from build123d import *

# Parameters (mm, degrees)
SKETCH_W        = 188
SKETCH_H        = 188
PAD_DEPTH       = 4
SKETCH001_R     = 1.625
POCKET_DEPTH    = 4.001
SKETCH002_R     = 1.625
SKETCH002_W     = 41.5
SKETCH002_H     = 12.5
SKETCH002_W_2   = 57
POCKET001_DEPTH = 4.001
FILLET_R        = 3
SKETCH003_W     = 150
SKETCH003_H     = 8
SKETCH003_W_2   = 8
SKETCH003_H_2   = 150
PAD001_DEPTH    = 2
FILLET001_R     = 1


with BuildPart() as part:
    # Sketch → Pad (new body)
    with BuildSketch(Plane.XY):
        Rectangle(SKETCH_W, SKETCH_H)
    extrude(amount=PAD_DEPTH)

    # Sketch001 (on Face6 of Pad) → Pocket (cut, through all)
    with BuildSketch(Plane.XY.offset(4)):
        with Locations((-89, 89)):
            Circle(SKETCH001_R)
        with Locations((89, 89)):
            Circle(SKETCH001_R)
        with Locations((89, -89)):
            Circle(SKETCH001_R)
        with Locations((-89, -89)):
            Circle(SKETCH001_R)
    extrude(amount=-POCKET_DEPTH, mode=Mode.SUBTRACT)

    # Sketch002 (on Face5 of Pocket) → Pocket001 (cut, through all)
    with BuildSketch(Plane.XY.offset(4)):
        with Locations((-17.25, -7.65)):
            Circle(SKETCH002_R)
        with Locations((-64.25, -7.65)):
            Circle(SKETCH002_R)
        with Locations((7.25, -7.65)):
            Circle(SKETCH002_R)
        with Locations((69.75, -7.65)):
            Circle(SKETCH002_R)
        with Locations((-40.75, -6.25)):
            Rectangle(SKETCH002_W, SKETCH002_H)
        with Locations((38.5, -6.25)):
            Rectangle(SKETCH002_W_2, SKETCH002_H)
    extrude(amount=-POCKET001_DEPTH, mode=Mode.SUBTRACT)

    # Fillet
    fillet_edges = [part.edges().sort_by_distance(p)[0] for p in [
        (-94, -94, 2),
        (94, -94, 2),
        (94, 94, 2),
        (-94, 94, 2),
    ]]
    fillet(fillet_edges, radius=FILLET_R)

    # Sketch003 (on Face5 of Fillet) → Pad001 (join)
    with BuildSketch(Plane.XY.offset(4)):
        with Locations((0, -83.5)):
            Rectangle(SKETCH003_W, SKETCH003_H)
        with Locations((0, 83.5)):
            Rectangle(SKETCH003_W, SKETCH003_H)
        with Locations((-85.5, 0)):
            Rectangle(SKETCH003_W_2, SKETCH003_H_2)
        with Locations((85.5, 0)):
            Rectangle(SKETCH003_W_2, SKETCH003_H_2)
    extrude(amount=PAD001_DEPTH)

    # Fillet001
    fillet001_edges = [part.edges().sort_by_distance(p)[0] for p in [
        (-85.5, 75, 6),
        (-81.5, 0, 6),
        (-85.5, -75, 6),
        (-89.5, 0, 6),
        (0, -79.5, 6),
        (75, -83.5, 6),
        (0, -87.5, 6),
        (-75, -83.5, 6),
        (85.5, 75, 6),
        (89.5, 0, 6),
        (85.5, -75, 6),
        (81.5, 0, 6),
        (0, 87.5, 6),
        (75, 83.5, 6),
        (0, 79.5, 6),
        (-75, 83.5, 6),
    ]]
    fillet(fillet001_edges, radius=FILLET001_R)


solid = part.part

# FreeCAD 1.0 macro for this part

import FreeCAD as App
import Part
import Sketcher

V = App.Vector
Q = App.Units.Quantity


def edges_at(feature, points):
    """Names of the edges that pass closest to the given points."""
    edges = feature.Shape.Edges
    near = lambda p: min(range(len(edges)), key=lambda i: edges[i].distToShape(Part.Vertex(*p))[0])
    return sorted({f"Edge{near(p) + 1}" for p in points})

doc = App.newDocument("Part")
params = doc.addObject("Spreadsheet::Sheet", "Params")
for row, (alias, value) in enumerate([
    ("sketch1_width", "188 mm"),
    ("pad1_length", "4 mm"),
    ("sketch2_diameter", "3.25 mm"),
    ("sketch3_diameter", "3.25 mm"),
    ("sketch3_width", "57 mm"),
    ("sketch3_width2", "41.5 mm"),
    ("sketch3_height", "12.5 mm"),
    ("fillet_radius", "3 mm"),
    ("sketch4_width", "150 mm"),
    ("sketch4_width2", "8 mm"),
    ("pad2_length", "2 mm"),
    ("fillet2_radius", "1 mm"),
], start=1):
    params.set(f"A{row}", alias)
    params.set(f"B{row}", "=" + value)
    params.setAlias(f"B{row}", alias)

body = doc.addObject("PartDesign::Body", "Body")

# Sketch on XY plane
sketch1 = doc.addObject("Sketcher::SketchObject", "Sketch")
body.addObject(sketch1)
sketch1.AttachmentSupport = (doc.XY_Plane, [""])
sketch1.MapMode = "FlatFace"
sketch1.addGeometry([
    Part.LineSegment(V(-94, 94, 0), V(-94, -94, 0)),
    Part.LineSegment(V(-94, -94, 0), V(94, -94, 0)),
    Part.LineSegment(V(94, -94, 0), V(94, 94, 0)),
    Part.LineSegment(V(94, 94, 0), V(-94, 94, 0)),
], False)
sketch1.addConstraint([
    Sketcher.Constraint("Coincident", 0, 2, 1, 1),
    Sketcher.Constraint("Coincident", 1, 2, 2, 1),
    Sketcher.Constraint("Coincident", 2, 2, 3, 1),
    Sketcher.Constraint("Coincident", 3, 2, 0, 1),
    Sketcher.Constraint("Vertical", 0),
    Sketcher.Constraint("Horizontal", 1),
    Sketcher.Constraint("Vertical", 2),
    Sketcher.Constraint("Horizontal", 3),
    Sketcher.Constraint("Symmetric", 0, 2, 2, 2, -1, 1),
    Sketcher.Constraint("Equal", 3, 0),
    Sketcher.Constraint("DistanceX", 1, 1, 1, 2, Q("188 mm")),
])
sketch1.setExpression("Constraints[10]", "Params.sketch1_width")
pad1 = doc.addObject("PartDesign::Pad", "Pad")
body.addObject(pad1)
pad1.Profile = sketch1
pad1.setExpression("Length", "Params.pad1_length")

# Sketch on XY plane
sketch2 = doc.addObject("Sketcher::SketchObject", "Sketch001")
body.addObject(sketch2)
sketch2.AttachmentSupport = (doc.XY_Plane, [""])
sketch2.MapMode = "FlatFace"
sketch2.AttachmentOffset = App.Placement(V(0, 0, 4), App.Rotation())
sketch2.addGeometry([
    Part.Circle(V(-89, 89, 0), V(0, 0, 1), 1.6),
    Part.Circle(V(89, 89, 0), V(0, 0, 1), 1.6),
    Part.Circle(V(89, -89, 0), V(0, 0, 1), 1.6),
    Part.Circle(V(-89, -89, 0), V(0, 0, 1), 1.6),
], False)
sketch2.addConstraint([
    Sketcher.Constraint("Equal", 0, 1),
    Sketcher.Constraint("Equal", 1, 2),
    Sketcher.Constraint("Equal", 2, 3),
    Sketcher.Constraint("Symmetric", 0, 3, 2, 3, -1, 1),
    Sketcher.Constraint("Symmetric", 1, 3, 3, 3, -1, 1),
    Sketcher.Constraint("Symmetric", 0, 3, 1, 3, -2),
    Sketcher.Constraint("Diameter", 0, Q("3.25 mm")),
    Sketcher.Constraint("DistanceX", 0, 3, -1, 1, Q("89 mm")),
    Sketcher.Constraint("DistanceY", -1, 1, 0, 3, Q("89 mm")),
])
sketch2.setExpression("Constraints[6]", "Params.sketch2_diameter")
pocket1 = doc.addObject("PartDesign::Pocket", "Pocket")
body.addObject(pocket1)
pocket1.Profile = sketch2
pocket1.Type = "ThroughAll"

# Sketch on XY plane
sketch3 = doc.addObject("Sketcher::SketchObject", "Sketch002")
body.addObject(sketch3)
sketch3.AttachmentSupport = (doc.XY_Plane, [""])
sketch3.MapMode = "FlatFace"
sketch3.AttachmentOffset = App.Placement(V(0, 0, 4), App.Rotation())
sketch3.addGeometry([
    Part.Circle(V(-17.2, -7.7, 0), V(0, 0, 1), 1.6),  # 0
    Part.Circle(V(-64.2, -7.7, 0), V(0, 0, 1), 1.6),  # 1
    Part.Circle(V(7.2, -7.7, 0), V(0, 0, 1), 1.6),  # 2
    Part.Circle(V(69.8, -7.7, 0), V(0, 0, 1), 1.6),  # 3
    Part.LineSegment(V(-61.5, 0, 0), V(-61.5, -12.5, 0)),  # 4
    Part.LineSegment(V(-61.5, -12.5, 0), V(-20, -12.5, 0)),  # 5
    Part.LineSegment(V(-20, -12.5, 0), V(-20, 0, 0)),  # 6
    Part.LineSegment(V(-20, 0, 0), V(-61.5, 0, 0)),  # 7
    Part.LineSegment(V(10, 0, 0), V(10, -12.5, 0)),  # 8
    Part.LineSegment(V(10, -12.5, 0), V(67, -12.5, 0)),  # 9
    Part.LineSegment(V(67, -12.5, 0), V(67, 0, 0)),  # 10
    Part.LineSegment(V(67, 0, 0), V(10, 0, 0)),  # 11
], False)
sketch3.addConstraint([
    Sketcher.Constraint("Coincident", 4, 2, 5, 1),
    Sketcher.Constraint("Coincident", 5, 2, 6, 1),
    Sketcher.Constraint("Coincident", 6, 2, 7, 1),
    Sketcher.Constraint("Coincident", 7, 2, 4, 1),
    Sketcher.Constraint("Coincident", 8, 2, 9, 1),
    Sketcher.Constraint("Coincident", 9, 2, 10, 1),
    Sketcher.Constraint("Coincident", 10, 2, 11, 1),
    Sketcher.Constraint("Coincident", 11, 2, 8, 1),
    Sketcher.Constraint("Vertical", 4),
    Sketcher.Constraint("Horizontal", 5),
    Sketcher.Constraint("Vertical", 6),
    Sketcher.Constraint("Horizontal", 7),
    Sketcher.Constraint("Vertical", 8),
    Sketcher.Constraint("Horizontal", 9),
    Sketcher.Constraint("Vertical", 10),
    Sketcher.Constraint("Horizontal", 11),
    Sketcher.Constraint("Equal", 0, 1),
    Sketcher.Constraint("Equal", 1, 2),
    Sketcher.Constraint("Equal", 2, 3),
    Sketcher.Constraint("PointOnObject", 6, 2, -1),
    Sketcher.Constraint("PointOnObject", 10, 2, -1),
    Sketcher.Constraint("Horizontal", 0, 3, 1, 3),
    Sketcher.Constraint("Horizontal", 1, 3, 2, 3),
    Sketcher.Constraint("Horizontal", 2, 3, 3, 3),
    Sketcher.Constraint("Horizontal", 5, 2, 8, 2),
    Sketcher.Constraint("Diameter", 0, Q("3.25 mm")),
    Sketcher.Constraint("DistanceX", 9, 1, 9, 2, Q("57 mm")),
    Sketcher.Constraint("DistanceX", 5, 1, 5, 2, Q("41.5 mm")),
    Sketcher.Constraint("DistanceY", 4, 2, 4, 1, Q("12.5 mm")),
    Sketcher.Constraint("DistanceX", 5, 2, -1, 1, Q("20 mm")),
    Sketcher.Constraint("DistanceX", -1, 1, 8, 2, Q("10 mm")),
    Sketcher.Constraint("DistanceX", 1, 3, 0, 3, Q("47 mm")),
    Sketcher.Constraint("DistanceX", 0, 3, 3, 3, Q("87 mm")),
    Sketcher.Constraint("DistanceX", 0, 3, 2, 3, Q("24.5 mm")),
    Sketcher.Constraint("DistanceX", 0, 3, -1, 1, Q("17.25 mm")),
    Sketcher.Constraint("DistanceY", 0, 3, -1, 1, Q("7.65 mm")),
])
sketch3.setExpression("Constraints[25]", "Params.sketch3_diameter")
sketch3.setExpression("Constraints[26]", "Params.sketch3_width")
sketch3.setExpression("Constraints[27]", "Params.sketch3_width2")
sketch3.setExpression("Constraints[28]", "Params.sketch3_height")
pocket2 = doc.addObject("PartDesign::Pocket", "Pocket001")
body.addObject(pocket2)
pocket2.Profile = sketch3
pocket2.Type = "ThroughAll"
doc.recompute()

fillet = doc.addObject("PartDesign::Fillet", "Fillet")
body.addObject(fillet)
fillet.Base = (pocket2, edges_at(pocket2, [
    (-94, -94, 2),
    (94, -94, 2),
    (94, 94, 2),
    (-94, 94, 2),
]))
fillet.setExpression("Radius", "Params.fillet_radius")

# Sketch on XY plane
sketch4 = doc.addObject("Sketcher::SketchObject", "Sketch003")
body.addObject(sketch4)
sketch4.AttachmentSupport = (doc.XY_Plane, [""])
sketch4.MapMode = "FlatFace"
sketch4.AttachmentOffset = App.Placement(V(0, 0, 4), App.Rotation())
sketch4.addGeometry([
    Part.LineSegment(V(-75, -80, 0), V(-75, -88, 0)),  # 0
    Part.LineSegment(V(-75, -88, 0), V(75, -88, 0)),  # 1
    Part.LineSegment(V(75, -88, 0), V(75, -80, 0)),  # 2
    Part.LineSegment(V(75, -80, 0), V(-75, -80, 0)),  # 3
    Part.LineSegment(V(-75, 88, 0), V(-75, 80, 0)),  # 4
    Part.LineSegment(V(-75, 80, 0), V(75, 80, 0)),  # 5
    Part.LineSegment(V(75, 80, 0), V(75, 88, 0)),  # 6
    Part.LineSegment(V(75, 88, 0), V(-75, 88, 0)),  # 7
    Part.LineSegment(V(-90, 75, 0), V(-90, -75, 0)),  # 8
    Part.LineSegment(V(-90, -75, 0), V(-82, -75, 0)),  # 9
    Part.LineSegment(V(-82, -75, 0), V(-82, 75, 0)),  # 10
    Part.LineSegment(V(-82, 75, 0), V(-90, 75, 0)),  # 11
    Part.LineSegment(V(82, 75, 0), V(82, -75, 0)),  # 12
    Part.LineSegment(V(82, -75, 0), V(90, -75, 0)),  # 13
    Part.LineSegment(V(90, -75, 0), V(90, 75, 0)),  # 14
    Part.LineSegment(V(90, 75, 0), V(82, 75, 0)),  # 15
], False)
sketch4.addConstraint([
    Sketcher.Constraint("Coincident", 0, 2, 1, 1),
    Sketcher.Constraint("Coincident", 1, 2, 2, 1),
    Sketcher.Constraint("Coincident", 2, 2, 3, 1),
    Sketcher.Constraint("Coincident", 3, 2, 0, 1),
    Sketcher.Constraint("Coincident", 4, 2, 5, 1),
    Sketcher.Constraint("Coincident", 5, 2, 6, 1),
    Sketcher.Constraint("Coincident", 6, 2, 7, 1),
    Sketcher.Constraint("Coincident", 7, 2, 4, 1),
    Sketcher.Constraint("Coincident", 8, 2, 9, 1),
    Sketcher.Constraint("Coincident", 9, 2, 10, 1),
    Sketcher.Constraint("Coincident", 10, 2, 11, 1),
    Sketcher.Constraint("Coincident", 11, 2, 8, 1),
    Sketcher.Constraint("Coincident", 12, 2, 13, 1),
    Sketcher.Constraint("Coincident", 13, 2, 14, 1),
    Sketcher.Constraint("Coincident", 14, 2, 15, 1),
    Sketcher.Constraint("Coincident", 15, 2, 12, 1),
    Sketcher.Constraint("Vertical", 0),
    Sketcher.Constraint("Horizontal", 1),
    Sketcher.Constraint("Vertical", 2),
    Sketcher.Constraint("Horizontal", 3),
    Sketcher.Constraint("Vertical", 4),
    Sketcher.Constraint("Horizontal", 5),
    Sketcher.Constraint("Vertical", 6),
    Sketcher.Constraint("Horizontal", 7),
    Sketcher.Constraint("Vertical", 8),
    Sketcher.Constraint("Horizontal", 9),
    Sketcher.Constraint("Vertical", 10),
    Sketcher.Constraint("Horizontal", 11),
    Sketcher.Constraint("Vertical", 12),
    Sketcher.Constraint("Horizontal", 13),
    Sketcher.Constraint("Vertical", 14),
    Sketcher.Constraint("Horizontal", 15),
    Sketcher.Constraint("Symmetric", 2, 2, 4, 2, -1, 1),
    Sketcher.Constraint("Symmetric", 0, 2, 6, 2, -1, 1),
    Sketcher.Constraint("Symmetric", 10, 2, 12, 2, -1, 1),
    Sketcher.Constraint("Symmetric", 8, 2, 14, 2, -1, 1),
    Sketcher.Constraint("Horizontal", 9, 2, 12, 2),
    Sketcher.Constraint("Vertical", 3, 2, 4, 2),
    Sketcher.Constraint("Equal", 15, 0),
    Sketcher.Constraint("Equal", 7, 8),
    Sketcher.Constraint("DistanceX", 1, 1, 1, 2, Q("150 mm")),
    Sketcher.Constraint("DistanceX", 9, 1, 9, 2, Q("8 mm")),
    Sketcher.Constraint("DistanceY", 3, 2, 4, 2, Q("159 mm")),
    Sketcher.Constraint("DistanceX", 8, 2, -1, 1, Q("89.5 mm")),
])
sketch4.setExpression("Constraints[40]", "Params.sketch4_width")
sketch4.setExpression("Constraints[41]", "Params.sketch4_width2")
pad2 = doc.addObject("PartDesign::Pad", "Pad001")
body.addObject(pad2)
pad2.Profile = sketch4
pad2.setExpression("Length", "Params.pad2_length")
doc.recompute()

fillet2 = doc.addObject("PartDesign::Fillet", "Fillet001")
body.addObject(fillet2)
fillet2.Base = (pad2, edges_at(pad2, [
    (-85.5, 75, 6),
    (-81.5, 0, 6),
    (-85.5, -75, 6),
    (-89.5, 0, 6),
    (0, -79.5, 6),
    (75, -83.5, 6),
    (0, -87.5, 6),
    (-75, -83.5, 6),
    (85.5, 75, 6),
    (89.5, 0, 6),
    (85.5, -75, 6),
    (81.5, 0, 6),
    (0, 87.5, 6),
    (75, 83.5, 6),
    (0, 79.5, 6),
    (-75, 83.5, 6),
]))
fillet2.setExpression("Radius", "Params.fillet2_radius")

doc.recompute()
